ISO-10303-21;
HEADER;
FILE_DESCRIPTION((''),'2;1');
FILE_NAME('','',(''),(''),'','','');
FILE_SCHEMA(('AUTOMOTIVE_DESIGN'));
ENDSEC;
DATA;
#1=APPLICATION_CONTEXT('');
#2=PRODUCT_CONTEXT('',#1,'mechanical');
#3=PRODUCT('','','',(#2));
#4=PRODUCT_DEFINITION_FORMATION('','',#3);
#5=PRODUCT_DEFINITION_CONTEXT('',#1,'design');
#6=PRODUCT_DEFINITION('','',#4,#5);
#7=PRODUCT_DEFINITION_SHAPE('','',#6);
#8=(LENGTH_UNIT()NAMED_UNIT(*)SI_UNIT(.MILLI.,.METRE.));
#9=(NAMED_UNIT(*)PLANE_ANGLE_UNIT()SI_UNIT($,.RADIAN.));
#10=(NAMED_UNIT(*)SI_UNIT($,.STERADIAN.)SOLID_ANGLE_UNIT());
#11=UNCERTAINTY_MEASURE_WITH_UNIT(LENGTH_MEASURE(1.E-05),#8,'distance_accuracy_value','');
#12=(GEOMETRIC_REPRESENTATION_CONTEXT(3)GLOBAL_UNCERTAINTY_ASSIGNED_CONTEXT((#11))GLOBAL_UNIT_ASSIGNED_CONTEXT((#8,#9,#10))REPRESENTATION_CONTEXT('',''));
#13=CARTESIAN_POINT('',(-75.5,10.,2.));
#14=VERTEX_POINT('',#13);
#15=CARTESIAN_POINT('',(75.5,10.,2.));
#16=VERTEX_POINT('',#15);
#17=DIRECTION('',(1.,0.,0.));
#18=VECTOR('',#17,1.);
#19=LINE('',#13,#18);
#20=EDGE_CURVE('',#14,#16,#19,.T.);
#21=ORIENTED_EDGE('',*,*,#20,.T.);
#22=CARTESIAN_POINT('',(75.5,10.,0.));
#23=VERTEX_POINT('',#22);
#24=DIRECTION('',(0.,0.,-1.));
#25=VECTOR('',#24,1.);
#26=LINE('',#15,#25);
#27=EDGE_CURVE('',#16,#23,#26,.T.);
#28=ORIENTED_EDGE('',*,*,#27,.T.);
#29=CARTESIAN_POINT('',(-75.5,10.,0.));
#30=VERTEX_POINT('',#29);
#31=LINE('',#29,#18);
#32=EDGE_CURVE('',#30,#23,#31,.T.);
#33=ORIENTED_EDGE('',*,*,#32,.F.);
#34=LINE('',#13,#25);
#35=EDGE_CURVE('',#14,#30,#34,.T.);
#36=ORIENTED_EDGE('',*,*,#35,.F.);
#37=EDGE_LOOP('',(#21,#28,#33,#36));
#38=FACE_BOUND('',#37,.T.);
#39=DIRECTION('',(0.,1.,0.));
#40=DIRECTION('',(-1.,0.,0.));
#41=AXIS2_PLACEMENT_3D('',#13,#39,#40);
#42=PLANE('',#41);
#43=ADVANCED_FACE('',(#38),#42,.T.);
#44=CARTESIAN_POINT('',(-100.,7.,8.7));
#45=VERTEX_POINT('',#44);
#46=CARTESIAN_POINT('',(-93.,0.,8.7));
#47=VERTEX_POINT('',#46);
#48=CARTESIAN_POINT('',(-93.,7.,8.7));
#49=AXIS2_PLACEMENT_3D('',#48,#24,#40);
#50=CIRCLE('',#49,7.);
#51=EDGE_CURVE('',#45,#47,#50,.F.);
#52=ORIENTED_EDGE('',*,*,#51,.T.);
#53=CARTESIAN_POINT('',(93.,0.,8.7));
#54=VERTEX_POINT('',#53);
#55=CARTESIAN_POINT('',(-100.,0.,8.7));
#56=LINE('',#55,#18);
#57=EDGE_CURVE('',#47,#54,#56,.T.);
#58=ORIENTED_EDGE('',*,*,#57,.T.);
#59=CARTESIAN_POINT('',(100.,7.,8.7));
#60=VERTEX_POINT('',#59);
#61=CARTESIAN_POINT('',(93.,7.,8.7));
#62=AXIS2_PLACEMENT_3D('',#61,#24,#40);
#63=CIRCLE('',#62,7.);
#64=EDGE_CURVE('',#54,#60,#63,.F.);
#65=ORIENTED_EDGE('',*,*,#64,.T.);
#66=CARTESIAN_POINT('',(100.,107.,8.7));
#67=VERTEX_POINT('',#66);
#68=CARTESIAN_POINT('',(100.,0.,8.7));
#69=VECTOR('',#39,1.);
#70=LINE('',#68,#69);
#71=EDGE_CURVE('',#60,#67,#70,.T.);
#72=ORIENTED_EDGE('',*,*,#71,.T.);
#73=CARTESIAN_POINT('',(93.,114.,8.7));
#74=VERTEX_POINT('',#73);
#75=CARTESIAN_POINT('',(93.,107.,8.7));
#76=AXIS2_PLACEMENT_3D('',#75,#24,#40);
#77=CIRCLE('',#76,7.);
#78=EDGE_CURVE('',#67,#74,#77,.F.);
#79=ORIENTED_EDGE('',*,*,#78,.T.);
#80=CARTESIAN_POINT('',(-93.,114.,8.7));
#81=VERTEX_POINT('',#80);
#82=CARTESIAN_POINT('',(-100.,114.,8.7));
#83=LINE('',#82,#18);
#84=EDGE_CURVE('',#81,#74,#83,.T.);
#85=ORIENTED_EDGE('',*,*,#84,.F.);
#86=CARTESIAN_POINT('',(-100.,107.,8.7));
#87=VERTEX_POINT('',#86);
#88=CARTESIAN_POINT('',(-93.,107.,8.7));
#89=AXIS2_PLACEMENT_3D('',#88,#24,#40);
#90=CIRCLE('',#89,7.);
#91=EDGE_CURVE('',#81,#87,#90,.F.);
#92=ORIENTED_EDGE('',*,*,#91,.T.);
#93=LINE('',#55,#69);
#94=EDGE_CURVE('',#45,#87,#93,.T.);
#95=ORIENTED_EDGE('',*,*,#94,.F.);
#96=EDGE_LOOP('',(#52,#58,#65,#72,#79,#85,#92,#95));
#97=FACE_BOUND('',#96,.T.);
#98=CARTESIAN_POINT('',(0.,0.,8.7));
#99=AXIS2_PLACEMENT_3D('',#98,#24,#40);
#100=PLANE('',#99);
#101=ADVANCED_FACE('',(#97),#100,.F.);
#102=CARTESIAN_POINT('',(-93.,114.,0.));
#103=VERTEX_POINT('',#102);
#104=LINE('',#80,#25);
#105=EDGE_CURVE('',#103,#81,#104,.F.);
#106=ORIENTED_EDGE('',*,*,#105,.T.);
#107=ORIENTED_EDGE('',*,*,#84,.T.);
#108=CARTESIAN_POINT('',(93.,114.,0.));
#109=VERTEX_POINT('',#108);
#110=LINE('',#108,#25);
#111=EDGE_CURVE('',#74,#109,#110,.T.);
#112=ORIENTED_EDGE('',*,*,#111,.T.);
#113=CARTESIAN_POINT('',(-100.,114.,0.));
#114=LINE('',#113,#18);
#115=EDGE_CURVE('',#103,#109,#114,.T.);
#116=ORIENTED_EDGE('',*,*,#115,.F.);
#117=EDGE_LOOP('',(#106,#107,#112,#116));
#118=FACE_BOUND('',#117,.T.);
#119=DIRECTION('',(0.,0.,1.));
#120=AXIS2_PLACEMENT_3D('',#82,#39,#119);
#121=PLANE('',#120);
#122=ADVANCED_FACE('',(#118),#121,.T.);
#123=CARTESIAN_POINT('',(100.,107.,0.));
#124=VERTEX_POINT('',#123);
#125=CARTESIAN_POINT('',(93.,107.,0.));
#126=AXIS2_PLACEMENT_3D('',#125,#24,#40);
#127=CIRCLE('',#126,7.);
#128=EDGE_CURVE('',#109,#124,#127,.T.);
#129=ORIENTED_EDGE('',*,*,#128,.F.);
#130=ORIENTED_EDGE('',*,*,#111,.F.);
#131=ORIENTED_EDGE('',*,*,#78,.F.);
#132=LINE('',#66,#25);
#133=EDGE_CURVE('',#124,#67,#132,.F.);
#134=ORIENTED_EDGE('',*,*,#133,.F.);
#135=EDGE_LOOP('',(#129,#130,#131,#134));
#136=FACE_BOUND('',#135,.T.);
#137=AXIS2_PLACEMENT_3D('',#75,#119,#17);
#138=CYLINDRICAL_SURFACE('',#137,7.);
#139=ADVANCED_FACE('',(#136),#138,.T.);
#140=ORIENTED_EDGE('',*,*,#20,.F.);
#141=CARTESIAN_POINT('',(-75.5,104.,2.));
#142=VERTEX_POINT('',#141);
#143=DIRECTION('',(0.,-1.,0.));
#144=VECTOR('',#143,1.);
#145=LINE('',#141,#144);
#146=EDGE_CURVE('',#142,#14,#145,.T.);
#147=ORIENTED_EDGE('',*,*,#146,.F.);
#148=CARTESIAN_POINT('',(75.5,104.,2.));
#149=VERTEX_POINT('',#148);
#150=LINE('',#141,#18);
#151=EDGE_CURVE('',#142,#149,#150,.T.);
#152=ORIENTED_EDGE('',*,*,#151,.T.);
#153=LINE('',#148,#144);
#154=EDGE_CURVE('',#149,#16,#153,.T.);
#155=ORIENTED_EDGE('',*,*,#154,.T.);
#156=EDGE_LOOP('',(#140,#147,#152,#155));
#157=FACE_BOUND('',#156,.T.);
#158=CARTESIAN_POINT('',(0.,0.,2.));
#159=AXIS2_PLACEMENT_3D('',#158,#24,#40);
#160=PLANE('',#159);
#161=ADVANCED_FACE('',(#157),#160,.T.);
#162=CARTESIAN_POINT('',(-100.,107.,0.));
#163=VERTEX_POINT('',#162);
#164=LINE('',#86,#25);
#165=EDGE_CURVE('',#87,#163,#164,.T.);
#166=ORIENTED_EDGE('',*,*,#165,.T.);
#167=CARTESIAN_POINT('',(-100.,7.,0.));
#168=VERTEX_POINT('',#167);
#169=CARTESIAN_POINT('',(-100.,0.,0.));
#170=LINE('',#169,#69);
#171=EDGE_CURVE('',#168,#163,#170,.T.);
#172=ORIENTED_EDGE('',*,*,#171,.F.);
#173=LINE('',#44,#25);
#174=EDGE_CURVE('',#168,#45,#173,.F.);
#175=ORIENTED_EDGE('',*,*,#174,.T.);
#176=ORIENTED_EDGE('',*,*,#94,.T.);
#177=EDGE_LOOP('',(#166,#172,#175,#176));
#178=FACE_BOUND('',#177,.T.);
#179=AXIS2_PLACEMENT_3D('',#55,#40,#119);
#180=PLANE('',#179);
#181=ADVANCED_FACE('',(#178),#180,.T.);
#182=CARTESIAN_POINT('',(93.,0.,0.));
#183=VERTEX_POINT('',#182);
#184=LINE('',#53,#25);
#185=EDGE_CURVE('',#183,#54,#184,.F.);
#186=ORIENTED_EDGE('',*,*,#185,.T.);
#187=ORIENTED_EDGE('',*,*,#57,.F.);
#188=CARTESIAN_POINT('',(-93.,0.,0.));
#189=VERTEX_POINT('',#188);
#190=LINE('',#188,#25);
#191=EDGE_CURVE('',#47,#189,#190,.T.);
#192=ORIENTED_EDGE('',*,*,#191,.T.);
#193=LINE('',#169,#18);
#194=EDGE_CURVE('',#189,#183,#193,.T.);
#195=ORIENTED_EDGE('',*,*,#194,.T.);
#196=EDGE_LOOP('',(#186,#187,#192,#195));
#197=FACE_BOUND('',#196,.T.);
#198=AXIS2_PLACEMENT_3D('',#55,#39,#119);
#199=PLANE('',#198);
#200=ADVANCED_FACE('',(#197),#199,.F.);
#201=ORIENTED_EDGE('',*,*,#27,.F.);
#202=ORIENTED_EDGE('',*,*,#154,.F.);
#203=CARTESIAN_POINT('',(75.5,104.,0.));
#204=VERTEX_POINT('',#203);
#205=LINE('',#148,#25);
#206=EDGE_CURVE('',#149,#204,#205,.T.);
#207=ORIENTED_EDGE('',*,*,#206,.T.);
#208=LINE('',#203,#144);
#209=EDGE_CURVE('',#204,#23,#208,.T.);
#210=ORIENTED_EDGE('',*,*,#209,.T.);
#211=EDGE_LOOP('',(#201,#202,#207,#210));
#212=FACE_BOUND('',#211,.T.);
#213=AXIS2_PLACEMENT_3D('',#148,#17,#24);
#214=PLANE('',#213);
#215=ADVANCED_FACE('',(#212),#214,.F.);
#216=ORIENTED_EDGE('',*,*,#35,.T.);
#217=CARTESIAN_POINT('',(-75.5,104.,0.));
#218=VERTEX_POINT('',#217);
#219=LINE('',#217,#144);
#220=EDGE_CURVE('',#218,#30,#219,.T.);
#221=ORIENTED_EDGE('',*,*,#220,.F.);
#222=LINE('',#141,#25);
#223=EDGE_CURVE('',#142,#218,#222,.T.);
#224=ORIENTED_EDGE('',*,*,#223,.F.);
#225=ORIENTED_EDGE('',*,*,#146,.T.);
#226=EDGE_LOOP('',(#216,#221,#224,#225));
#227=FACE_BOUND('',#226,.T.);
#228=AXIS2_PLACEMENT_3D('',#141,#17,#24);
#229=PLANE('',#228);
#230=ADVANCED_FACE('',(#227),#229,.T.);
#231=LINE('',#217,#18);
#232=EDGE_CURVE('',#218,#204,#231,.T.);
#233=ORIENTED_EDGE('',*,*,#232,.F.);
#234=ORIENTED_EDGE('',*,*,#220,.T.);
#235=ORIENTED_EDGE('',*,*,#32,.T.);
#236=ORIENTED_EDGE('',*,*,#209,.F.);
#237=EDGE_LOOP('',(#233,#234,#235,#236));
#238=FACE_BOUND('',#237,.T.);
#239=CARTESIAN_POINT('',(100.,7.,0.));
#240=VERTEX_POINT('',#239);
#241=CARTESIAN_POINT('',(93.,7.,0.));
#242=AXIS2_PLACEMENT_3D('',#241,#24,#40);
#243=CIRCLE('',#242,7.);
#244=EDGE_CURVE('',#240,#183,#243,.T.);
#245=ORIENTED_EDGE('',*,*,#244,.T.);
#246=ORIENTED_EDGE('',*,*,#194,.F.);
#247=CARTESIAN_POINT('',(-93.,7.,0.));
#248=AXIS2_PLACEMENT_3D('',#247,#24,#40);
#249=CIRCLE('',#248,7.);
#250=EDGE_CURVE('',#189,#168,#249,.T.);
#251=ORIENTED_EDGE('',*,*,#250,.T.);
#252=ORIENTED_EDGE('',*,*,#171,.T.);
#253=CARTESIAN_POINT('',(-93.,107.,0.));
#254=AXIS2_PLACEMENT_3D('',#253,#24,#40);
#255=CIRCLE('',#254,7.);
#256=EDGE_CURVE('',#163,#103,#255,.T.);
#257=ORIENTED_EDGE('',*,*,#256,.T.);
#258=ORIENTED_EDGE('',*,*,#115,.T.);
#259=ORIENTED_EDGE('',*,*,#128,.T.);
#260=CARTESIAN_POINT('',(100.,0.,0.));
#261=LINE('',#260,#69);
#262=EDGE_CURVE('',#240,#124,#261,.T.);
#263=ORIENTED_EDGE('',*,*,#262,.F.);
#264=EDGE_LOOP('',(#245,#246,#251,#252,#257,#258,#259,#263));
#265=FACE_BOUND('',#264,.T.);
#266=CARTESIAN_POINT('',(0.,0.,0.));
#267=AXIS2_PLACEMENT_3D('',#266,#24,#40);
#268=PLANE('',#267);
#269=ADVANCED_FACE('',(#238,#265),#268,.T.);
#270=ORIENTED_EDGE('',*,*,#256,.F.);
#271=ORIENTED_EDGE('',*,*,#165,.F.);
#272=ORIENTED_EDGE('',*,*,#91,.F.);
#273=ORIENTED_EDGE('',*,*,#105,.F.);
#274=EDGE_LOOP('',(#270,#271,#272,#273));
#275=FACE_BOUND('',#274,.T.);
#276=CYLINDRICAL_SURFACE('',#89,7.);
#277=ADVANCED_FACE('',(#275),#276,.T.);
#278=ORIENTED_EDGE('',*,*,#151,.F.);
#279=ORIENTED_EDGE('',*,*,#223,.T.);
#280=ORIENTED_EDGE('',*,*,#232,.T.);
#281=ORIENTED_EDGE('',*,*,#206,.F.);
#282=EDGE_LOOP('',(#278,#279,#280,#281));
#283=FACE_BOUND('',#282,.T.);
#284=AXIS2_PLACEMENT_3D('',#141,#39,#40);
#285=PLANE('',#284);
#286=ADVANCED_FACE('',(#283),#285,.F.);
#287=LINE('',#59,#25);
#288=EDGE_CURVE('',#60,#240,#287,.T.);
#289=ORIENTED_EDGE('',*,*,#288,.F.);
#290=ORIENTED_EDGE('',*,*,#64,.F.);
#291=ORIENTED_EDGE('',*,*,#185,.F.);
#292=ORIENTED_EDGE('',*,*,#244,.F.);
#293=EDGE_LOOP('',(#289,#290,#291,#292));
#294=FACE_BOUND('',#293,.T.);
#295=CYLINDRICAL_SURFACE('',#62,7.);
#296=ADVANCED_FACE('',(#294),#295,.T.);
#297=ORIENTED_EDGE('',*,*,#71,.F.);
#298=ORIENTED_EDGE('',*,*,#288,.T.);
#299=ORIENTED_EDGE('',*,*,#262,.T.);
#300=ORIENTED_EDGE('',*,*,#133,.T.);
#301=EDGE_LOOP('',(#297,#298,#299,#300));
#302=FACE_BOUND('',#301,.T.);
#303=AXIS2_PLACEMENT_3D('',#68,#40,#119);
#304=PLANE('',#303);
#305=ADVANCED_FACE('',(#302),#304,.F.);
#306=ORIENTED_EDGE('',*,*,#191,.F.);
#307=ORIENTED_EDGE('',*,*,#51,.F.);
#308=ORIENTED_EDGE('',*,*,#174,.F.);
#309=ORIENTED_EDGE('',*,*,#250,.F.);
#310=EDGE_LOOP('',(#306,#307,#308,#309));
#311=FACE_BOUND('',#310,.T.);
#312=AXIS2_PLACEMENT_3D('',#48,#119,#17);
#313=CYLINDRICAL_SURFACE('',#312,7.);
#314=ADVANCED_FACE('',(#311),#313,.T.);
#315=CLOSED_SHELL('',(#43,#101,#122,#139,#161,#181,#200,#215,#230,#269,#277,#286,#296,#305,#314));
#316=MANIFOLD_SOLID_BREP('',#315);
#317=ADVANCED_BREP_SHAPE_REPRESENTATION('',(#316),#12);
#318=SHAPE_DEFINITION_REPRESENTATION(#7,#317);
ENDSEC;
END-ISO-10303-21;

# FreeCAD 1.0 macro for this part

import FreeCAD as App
import Part
import Sketcher

V = App.Vector
Q = App.Units.Quantity


def edges_at(feature, points):
    """Names of the edges that pass closest to the given points."""
    edges = feature.Shape.Edges
    near = lambda p: min(range(len(edges)), key=lambda i: edges[i].distToShape(Part.Vertex(*p))[0])
    return sorted({f"Edge{near(p) + 1}" for p in points})

doc = App.newDocument("Part")
body = doc.addObject("PartDesign::Body", "Body")

# Sketch on XY plane
sketch1 = body.newObject("Sketcher::SketchObject", "Sketch")
sketch1.AttachmentSupport = (doc.getObject("XY_Plane"), [""])
sketch1.MapMode = "FlatFace"
sketch1.addGeometry([
    Part.LineSegment(V(-100, 114, 0), V(-100, 0, 0)),
    Part.LineSegment(V(-100, 0, 0), V(100, 0, 0)),
    Part.LineSegment(V(100, 0, 0), V(100, 114, 0)),
    Part.LineSegment(V(100, 114, 0), V(-100, 114, 0)),
], False)
sketch1.addConstraint([
    Sketcher.Constraint("Coincident", 0, 2, 1, 1),
    Sketcher.Constraint("Coincident", 1, 2, 2, 1),
    Sketcher.Constraint("Coincident", 2, 2, 3, 1),
    Sketcher.Constraint("Coincident", 3, 2, 0, 1),
    Sketcher.Constraint("Vertical", 0),
    Sketcher.Constraint("Horizontal", 1),
    Sketcher.Constraint("Vertical", 2),
    Sketcher.Constraint("Horizontal", 3),
    Sketcher.Constraint("Symmetric", 0, 2, 1, 2, -1, 1),
    Sketcher.Constraint("DistanceX", 1, 1, 1, 2, Q("200 mm")),
    Sketcher.Constraint("DistanceY", 0, 2, 0, 1, Q("114 mm")),
])
pad1 = body.newObject("PartDesign::Pad", "Pad")
pad1.Profile = sketch1
pad1.Length = 8.7

# Sketch on XY plane
sketch2 = body.newObject("Sketcher::SketchObject", "Sketch001")
sketch2.AttachmentSupport = (doc.getObject("XY_Plane"), [""])
sketch2.MapMode = "FlatFace"
sketch2.addGeometry([
    Part.LineSegment(V(-76, 104, 0), V(-76, 10, 0)),
    Part.LineSegment(V(-76, 10, 0), V(76, 10, 0)),
    Part.LineSegment(V(76, 10, 0), V(76, 104, 0)),
    Part.LineSegment(V(76, 104, 0), V(-76, 104, 0)),
], False)
sketch2.addConstraint([
    Sketcher.Constraint("Coincident", 0, 2, 1, 1),
    Sketcher.Constraint("Coincident", 1, 2, 2, 1),
    Sketcher.Constraint("Coincident", 2, 2, 3, 1),
    Sketcher.Constraint("Coincident", 3, 2, 0, 1),
    Sketcher.Constraint("Vertical", 0),
    Sketcher.Constraint("Horizontal", 1),
    Sketcher.Constraint("Vertical", 2),
    Sketcher.Constraint("Horizontal", 3),
    Sketcher.Constraint("DistanceX", 1, 1, 1, 2, Q("151 mm")),
    Sketcher.Constraint("DistanceY", 0, 2, 0, 1, Q("94 mm")),
    Sketcher.Constraint("DistanceY", -1, 1, 0, 2, Q("10 mm")),
    Sketcher.Constraint("DistanceX", 0, 2, -1, 1, Q("75.5 mm")),
])
pocket1 = body.newObject("PartDesign::Pocket", "Pocket")
pocket1.Profile = sketch2
pocket1.Length = 2
pocket1.Reversed = True
doc.recompute()

fillet = body.newObject("PartDesign::Fillet", "Fillet")
fillet.Base = (pocket1, edges_at(pocket1, [
    (-100, 0, 4.35),
    (100, 0, 4.35),
    (100, 114, 4.35),
    (-100, 114, 4.35),
]))
fillet.Radius = 7

doc.recompute()
